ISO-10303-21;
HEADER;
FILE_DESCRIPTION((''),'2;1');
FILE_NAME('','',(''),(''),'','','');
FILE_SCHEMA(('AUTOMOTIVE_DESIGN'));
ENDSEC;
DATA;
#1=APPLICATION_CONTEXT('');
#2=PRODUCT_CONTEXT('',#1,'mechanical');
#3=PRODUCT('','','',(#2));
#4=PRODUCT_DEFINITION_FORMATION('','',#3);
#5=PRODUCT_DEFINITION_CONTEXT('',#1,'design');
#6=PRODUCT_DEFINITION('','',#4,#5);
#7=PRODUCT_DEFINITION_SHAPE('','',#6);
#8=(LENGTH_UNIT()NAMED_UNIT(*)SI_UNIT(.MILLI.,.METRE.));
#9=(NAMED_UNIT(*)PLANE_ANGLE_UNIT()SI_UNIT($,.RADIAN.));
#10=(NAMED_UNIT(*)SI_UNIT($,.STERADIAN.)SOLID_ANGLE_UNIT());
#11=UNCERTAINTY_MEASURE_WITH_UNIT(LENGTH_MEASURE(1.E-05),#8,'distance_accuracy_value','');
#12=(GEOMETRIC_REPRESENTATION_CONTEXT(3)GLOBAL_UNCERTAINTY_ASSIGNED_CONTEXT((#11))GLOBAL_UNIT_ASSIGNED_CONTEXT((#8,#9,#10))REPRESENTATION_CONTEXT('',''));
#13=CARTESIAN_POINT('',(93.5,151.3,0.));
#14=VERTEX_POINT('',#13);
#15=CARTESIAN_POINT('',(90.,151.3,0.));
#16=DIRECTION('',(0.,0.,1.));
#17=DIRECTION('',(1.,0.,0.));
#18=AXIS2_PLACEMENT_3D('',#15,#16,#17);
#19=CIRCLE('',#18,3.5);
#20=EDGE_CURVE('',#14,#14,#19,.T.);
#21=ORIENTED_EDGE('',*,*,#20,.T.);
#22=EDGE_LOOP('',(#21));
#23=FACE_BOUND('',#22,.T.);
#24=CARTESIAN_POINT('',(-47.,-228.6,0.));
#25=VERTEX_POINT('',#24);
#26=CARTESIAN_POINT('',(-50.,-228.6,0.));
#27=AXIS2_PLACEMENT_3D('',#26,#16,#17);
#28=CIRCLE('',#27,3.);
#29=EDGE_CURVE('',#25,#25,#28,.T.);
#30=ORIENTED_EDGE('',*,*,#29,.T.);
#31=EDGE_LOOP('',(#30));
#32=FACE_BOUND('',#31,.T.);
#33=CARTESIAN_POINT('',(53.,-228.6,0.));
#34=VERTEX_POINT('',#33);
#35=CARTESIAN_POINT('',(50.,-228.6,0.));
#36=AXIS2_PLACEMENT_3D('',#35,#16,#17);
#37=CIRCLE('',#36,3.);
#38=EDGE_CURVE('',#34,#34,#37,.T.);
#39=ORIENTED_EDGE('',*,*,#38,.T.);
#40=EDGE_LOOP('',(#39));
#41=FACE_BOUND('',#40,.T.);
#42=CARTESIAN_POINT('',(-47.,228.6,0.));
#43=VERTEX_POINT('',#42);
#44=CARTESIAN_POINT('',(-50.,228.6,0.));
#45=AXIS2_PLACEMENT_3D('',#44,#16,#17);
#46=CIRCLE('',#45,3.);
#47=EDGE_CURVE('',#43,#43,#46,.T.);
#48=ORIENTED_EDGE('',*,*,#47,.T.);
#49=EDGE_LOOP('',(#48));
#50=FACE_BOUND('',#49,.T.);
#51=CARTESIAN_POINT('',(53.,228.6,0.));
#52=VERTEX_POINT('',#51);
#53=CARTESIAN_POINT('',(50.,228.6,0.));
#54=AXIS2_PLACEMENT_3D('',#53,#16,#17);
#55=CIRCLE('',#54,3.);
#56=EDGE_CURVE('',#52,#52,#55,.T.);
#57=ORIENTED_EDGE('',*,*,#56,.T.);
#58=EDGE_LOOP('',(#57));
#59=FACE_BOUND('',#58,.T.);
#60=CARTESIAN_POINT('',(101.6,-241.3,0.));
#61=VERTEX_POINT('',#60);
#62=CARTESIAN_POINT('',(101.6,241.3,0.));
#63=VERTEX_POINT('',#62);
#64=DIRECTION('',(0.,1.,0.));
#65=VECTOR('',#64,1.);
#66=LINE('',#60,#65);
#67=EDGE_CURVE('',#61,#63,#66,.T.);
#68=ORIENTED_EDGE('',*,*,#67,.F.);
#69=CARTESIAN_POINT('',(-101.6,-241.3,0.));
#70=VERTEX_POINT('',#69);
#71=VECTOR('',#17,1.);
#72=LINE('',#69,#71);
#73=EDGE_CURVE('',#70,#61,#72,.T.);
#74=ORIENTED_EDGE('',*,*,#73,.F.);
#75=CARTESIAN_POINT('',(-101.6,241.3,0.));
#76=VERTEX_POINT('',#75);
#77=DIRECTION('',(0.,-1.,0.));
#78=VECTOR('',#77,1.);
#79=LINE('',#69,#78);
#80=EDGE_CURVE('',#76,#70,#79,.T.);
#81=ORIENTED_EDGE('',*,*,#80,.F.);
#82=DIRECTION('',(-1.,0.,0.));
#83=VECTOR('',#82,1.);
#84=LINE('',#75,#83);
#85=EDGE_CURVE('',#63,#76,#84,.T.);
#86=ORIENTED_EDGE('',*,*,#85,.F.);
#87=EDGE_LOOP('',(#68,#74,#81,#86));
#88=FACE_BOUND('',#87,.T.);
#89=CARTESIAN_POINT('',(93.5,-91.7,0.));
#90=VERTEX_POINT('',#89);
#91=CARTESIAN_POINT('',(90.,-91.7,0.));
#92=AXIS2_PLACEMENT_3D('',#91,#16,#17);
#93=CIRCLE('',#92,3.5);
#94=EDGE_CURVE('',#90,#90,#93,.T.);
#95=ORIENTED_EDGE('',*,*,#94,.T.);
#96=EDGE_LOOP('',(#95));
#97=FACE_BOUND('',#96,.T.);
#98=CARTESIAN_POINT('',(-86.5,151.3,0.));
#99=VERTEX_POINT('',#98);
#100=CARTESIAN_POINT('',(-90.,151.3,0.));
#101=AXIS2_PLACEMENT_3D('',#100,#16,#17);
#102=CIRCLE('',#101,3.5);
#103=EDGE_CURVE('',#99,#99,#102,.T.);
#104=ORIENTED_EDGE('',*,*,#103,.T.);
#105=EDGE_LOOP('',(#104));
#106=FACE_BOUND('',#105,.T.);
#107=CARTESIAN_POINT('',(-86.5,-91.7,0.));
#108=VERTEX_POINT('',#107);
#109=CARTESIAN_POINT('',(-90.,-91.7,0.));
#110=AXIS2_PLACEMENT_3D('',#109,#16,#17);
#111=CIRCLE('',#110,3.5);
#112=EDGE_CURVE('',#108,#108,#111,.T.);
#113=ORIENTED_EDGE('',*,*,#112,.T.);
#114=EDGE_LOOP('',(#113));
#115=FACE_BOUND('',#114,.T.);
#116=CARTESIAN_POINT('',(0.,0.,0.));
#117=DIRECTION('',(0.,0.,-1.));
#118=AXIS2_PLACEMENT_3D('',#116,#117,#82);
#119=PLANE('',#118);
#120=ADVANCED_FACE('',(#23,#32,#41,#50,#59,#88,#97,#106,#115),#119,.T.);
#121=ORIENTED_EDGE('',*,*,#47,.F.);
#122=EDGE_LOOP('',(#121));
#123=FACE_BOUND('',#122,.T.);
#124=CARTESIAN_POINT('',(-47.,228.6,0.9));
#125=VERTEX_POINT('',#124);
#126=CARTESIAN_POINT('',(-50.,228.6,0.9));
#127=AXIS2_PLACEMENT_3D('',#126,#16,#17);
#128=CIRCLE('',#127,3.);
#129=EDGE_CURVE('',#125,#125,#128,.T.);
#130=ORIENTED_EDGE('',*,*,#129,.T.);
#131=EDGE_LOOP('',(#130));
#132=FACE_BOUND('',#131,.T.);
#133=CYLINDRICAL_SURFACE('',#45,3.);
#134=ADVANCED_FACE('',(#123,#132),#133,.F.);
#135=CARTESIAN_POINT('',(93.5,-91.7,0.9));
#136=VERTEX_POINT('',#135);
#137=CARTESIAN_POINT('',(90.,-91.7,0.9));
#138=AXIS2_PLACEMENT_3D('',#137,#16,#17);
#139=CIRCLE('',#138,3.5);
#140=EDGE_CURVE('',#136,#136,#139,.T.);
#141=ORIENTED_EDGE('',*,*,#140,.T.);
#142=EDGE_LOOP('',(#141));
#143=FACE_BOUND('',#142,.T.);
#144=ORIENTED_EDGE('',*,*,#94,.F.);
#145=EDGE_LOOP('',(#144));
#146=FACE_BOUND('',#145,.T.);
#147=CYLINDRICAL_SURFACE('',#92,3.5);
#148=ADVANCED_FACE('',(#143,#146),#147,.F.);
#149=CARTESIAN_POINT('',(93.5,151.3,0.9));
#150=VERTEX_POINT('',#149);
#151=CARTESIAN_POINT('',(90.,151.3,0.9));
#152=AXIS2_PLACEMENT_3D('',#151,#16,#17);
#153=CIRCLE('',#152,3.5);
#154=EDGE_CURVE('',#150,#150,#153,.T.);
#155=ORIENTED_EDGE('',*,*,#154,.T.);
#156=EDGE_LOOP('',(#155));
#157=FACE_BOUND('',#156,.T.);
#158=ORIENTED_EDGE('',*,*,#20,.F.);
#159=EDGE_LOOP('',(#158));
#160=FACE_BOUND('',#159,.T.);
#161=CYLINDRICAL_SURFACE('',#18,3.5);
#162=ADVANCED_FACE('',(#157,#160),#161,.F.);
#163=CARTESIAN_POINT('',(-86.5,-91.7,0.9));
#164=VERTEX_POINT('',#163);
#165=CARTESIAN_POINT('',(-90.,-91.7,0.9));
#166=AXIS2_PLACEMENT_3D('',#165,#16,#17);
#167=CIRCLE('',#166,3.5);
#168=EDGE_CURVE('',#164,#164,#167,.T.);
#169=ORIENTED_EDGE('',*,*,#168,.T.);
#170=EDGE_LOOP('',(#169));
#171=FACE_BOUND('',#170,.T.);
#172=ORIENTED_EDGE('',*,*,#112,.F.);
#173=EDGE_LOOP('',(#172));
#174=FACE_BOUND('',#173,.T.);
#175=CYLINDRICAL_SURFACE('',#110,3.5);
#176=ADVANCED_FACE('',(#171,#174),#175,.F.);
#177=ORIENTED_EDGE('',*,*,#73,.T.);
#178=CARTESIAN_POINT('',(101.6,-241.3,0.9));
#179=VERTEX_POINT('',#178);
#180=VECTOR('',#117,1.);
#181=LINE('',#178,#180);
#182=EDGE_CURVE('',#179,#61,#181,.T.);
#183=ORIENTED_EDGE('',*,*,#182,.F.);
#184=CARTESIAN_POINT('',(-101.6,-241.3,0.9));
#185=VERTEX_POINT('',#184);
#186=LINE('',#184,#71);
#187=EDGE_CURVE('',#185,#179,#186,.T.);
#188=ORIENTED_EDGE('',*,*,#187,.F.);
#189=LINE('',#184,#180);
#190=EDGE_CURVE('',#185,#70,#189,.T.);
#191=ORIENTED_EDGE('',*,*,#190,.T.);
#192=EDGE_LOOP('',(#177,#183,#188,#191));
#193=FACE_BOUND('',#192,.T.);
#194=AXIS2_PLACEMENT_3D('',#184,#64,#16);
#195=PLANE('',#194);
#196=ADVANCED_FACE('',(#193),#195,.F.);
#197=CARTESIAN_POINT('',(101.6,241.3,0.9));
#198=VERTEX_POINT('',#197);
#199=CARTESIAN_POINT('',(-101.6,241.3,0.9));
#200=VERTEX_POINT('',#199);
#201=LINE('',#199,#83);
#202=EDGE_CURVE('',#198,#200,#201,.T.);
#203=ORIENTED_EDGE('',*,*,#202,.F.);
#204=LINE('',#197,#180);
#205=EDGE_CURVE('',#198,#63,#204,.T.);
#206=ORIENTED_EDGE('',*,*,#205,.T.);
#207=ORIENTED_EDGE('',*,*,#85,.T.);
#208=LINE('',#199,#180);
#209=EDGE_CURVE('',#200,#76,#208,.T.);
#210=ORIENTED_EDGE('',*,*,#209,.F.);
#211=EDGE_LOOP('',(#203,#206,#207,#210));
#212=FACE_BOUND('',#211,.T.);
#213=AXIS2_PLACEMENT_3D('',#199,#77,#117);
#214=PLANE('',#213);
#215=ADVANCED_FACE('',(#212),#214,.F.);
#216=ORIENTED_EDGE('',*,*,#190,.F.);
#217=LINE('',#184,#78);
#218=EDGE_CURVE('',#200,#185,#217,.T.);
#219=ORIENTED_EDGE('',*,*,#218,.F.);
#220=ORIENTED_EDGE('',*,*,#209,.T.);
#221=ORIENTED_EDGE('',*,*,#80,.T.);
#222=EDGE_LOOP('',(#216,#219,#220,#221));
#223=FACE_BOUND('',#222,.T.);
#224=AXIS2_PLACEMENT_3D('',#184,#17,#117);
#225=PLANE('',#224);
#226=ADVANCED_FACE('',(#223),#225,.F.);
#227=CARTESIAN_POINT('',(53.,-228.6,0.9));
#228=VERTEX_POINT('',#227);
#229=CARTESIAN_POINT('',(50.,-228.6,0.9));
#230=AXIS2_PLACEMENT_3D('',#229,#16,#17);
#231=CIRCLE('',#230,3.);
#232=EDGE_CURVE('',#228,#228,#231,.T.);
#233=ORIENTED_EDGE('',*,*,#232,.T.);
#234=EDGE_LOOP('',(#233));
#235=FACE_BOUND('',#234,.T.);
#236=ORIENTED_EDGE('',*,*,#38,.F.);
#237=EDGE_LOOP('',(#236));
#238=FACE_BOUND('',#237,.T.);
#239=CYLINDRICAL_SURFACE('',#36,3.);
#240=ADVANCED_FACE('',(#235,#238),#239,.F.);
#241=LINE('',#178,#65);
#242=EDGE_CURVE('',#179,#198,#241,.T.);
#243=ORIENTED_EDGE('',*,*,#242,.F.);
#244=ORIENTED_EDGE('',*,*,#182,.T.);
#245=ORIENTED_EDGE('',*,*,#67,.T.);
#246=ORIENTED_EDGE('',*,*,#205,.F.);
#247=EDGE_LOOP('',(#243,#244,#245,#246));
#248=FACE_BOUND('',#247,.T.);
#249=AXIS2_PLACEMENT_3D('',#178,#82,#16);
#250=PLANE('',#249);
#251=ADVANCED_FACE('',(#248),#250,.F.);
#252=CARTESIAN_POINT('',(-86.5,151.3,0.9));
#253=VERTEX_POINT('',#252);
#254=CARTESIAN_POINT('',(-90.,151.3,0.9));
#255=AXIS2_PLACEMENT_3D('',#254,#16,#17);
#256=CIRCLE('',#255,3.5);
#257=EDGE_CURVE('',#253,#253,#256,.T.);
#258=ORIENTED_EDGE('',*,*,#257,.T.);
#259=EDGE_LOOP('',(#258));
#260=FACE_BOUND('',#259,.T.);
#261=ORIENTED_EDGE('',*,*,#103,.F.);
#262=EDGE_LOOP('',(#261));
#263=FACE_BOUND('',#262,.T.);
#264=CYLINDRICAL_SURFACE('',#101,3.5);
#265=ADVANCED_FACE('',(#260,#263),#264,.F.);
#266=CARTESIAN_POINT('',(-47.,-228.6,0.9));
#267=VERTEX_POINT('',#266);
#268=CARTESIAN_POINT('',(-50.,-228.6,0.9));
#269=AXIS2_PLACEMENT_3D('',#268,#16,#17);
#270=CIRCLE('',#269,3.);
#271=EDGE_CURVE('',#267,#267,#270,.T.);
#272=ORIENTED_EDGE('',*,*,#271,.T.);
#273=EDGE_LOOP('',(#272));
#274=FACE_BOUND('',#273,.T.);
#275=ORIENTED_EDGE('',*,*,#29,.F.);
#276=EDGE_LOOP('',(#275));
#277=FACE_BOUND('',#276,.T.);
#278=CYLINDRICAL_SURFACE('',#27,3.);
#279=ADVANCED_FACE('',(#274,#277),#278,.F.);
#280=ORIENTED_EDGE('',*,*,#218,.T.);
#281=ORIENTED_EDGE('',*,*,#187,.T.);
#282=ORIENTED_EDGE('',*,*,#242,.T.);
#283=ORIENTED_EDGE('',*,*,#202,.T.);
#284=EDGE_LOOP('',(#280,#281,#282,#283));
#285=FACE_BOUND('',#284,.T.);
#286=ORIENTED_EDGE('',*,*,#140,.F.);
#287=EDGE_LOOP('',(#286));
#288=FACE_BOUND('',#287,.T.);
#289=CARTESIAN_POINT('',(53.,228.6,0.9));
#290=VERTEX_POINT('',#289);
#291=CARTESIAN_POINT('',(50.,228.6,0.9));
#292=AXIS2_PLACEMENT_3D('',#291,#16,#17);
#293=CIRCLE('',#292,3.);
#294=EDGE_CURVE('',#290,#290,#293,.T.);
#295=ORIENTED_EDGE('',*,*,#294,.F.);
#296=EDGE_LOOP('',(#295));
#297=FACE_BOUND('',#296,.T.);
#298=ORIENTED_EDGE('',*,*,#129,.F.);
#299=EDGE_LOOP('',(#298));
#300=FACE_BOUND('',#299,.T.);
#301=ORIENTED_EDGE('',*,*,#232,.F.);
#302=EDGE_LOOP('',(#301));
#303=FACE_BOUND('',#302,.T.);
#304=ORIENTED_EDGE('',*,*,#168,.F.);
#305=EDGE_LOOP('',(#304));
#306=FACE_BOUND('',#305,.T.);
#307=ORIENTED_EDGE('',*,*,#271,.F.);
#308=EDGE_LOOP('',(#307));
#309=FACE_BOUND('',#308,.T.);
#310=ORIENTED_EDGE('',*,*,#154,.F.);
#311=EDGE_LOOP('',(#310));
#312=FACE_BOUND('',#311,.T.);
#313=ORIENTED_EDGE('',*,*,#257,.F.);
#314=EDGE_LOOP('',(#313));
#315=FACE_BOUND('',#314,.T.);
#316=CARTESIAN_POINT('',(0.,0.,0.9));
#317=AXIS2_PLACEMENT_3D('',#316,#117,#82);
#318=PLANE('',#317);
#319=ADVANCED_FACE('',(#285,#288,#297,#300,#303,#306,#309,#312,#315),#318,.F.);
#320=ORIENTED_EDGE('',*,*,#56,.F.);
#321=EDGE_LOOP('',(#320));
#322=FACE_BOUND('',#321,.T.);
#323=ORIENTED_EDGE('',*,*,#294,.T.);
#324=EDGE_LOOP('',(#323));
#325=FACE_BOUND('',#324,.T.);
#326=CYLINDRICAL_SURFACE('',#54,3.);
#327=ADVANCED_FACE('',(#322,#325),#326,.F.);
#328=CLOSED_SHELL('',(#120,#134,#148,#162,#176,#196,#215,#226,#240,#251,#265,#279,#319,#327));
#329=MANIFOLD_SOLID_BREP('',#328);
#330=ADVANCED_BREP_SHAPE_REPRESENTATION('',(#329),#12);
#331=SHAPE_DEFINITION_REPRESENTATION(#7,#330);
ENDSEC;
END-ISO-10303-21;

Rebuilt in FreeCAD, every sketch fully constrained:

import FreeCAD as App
import Part
import Sketcher
Q = App.Units.Quantity

doc = App.newDocument("Part")
params = doc.addObject("Spreadsheet::Sheet", "Params")
for row, (alias, value) in enumerate([
    ("sketch1_width", "203.2 mm"),
    ("sketch1_height", "482.6 mm"),
    ("pad1_length", "0.9 mm"),
    ("sketch2_diameter", "7 mm"),
    ("pocket1_length", "0.9 mm"),
    ("sketch3_diameter", "6 mm"),
    ("pocket2_length", "0.9 mm"),
], start=1):
    params.set(f"A{row}", alias)
    params.set(f"B{row}", "=" + value)
    params.setAlias(f"B{row}", alias)

body = doc.addObject("PartDesign::Body", "Body")

sketch1 = body.newObject("Sketcher::SketchObject", "Sketch")
sketch1.AttachmentSupport = (doc.getObject("XY_Plane"), [""])
sketch1.MapMode = "FlatFace"
sketch1.addGeometry([
    Part.LineSegment(App.Vector(-102, 241, 0), App.Vector(-102, -241, 0)),
    Part.LineSegment(App.Vector(-102, -241, 0), App.Vector(102, -241, 0)),
    Part.LineSegment(App.Vector(102, -241, 0), App.Vector(102, 241, 0)),
    Part.LineSegment(App.Vector(102, 241, 0), App.Vector(-102, 241, 0)),
], False)
sketch1.addConstraint([
    Sketcher.Constraint("Coincident", 0, 2, 1, 1),
    Sketcher.Constraint("Coincident", 1, 2, 2, 1),
    Sketcher.Constraint("Coincident", 2, 2, 3, 1),
    Sketcher.Constraint("Coincident", 3, 2, 0, 1),
    Sketcher.Constraint("Vertical", 0),
    Sketcher.Constraint("Horizontal", 1),
    Sketcher.Constraint("Vertical", 2),
    Sketcher.Constraint("Horizontal", 3),
    Sketcher.Constraint("Symmetric", 0, 2, 2, 2, -1, 1),
    Sketcher.Constraint("DistanceX", 1, 1, 1, 2, Q("203.2 mm")),
    Sketcher.Constraint("DistanceY", 0, 2, 0, 1, Q("482.6 mm")),
])
sketch1.setExpression("Constraints[9]", "Params.sketch1_width")
sketch1.setExpression("Constraints[10]", "Params.sketch1_height")
pad1 = body.newObject("PartDesign::Pad", "Pad")
pad1.Profile = sketch1
pad1.setExpression("Length", "Params.pad1_length")

sketch2 = body.newObject("Sketcher::SketchObject", "Sketch001")
sketch2.AttachmentSupport = (doc.getObject("XY_Plane"), [""])
sketch2.MapMode = "FlatFace"
sketch2.AttachmentOffset = App.Placement(App.Vector(0, 0, 0.9), App.Rotation())
sketch2.addGeometry([
    Part.Circle(App.Vector(-90, 151.3, 0), App.Vector(0, 0, 1), 3.5),
    Part.Circle(App.Vector(90, 151.3, 0), App.Vector(0, 0, 1), 3.5),
    Part.Circle(App.Vector(90, -91.7, 0), App.Vector(0, 0, 1), 3.5),
    Part.Circle(App.Vector(-90, -91.7, 0), App.Vector(0, 0, 1), 3.5),
], False)
sketch2.addConstraint([
    Sketcher.Constraint("Equal", 0, 1),
    Sketcher.Constraint("Equal", 1, 2),
    Sketcher.Constraint("Equal", 2, 3),
    Sketcher.Constraint("Symmetric", 0, 3, 1, 3, -2),
    Sketcher.Constraint("Symmetric", 2, 3, 3, 3, -2),
    Sketcher.Constraint("Vertical", 1, 3, 2, 3),
    Sketcher.Constraint("Diameter", 0, Q("7 mm")),
    Sketcher.Constraint("DistanceX", 0, 3, -1, 1, Q("90 mm")),
    Sketcher.Constraint("DistanceY", 2, 3, 1, 3, Q("243 mm")),
    Sketcher.Constraint("DistanceY", -1, 1, 0, 3, Q("151.3 mm")),
])
sketch2.setExpression("Constraints[6]", "Params.sketch2_diameter")
pocket1 = body.newObject("PartDesign::Pocket", "Pocket")
pocket1.Profile = sketch2
pocket1.setExpression("Length", "Params.pocket1_length")

sketch3 = body.newObject("Sketcher::SketchObject", "Sketch002")
sketch3.AttachmentSupport = (doc.getObject("XY_Plane"), [""])
sketch3.MapMode = "FlatFace"
sketch3.AttachmentOffset = App.Placement(App.Vector(0, 0, 0.9), App.Rotation())
sketch3.addGeometry([
    Part.Circle(App.Vector(-50, 228.6, 0), App.Vector(0, 0, 1), 3),
    Part.Circle(App.Vector(50, 228.6, 0), App.Vector(0, 0, 1), 3),
    Part.Circle(App.Vector(50, -228.6, 0), App.Vector(0, 0, 1), 3),
    Part.Circle(App.Vector(-50, -228.6, 0), App.Vector(0, 0, 1), 3),
], False)
sketch3.addConstraint([
    Sketcher.Constraint("Equal", 0, 1),
    Sketcher.Constraint("Equal", 1, 2),
    Sketcher.Constraint("Equal", 2, 3),
    Sketcher.Constraint("Symmetric", 0, 3, 2, 3, -1, 1),
    Sketcher.Constraint("Symmetric", 1, 3, 3, 3, -1, 1),
    Sketcher.Constraint("Symmetric", 0, 3, 1, 3, -2),
    Sketcher.Constraint("Diameter", 0, Q("6 mm")),
    Sketcher.Constraint("DistanceX", 0, 3, -1, 1, Q("50 mm")),
    Sketcher.Constraint("DistanceY", -1, 1, 0, 3, Q("228.6 mm")),
])
sketch3.setExpression("Constraints[6]", "Params.sketch3_diameter")
pocket2 = body.newObject("PartDesign::Pocket", "Pocket001")
pocket2.Profile = sketch3
pocket2.setExpression("Length", "Params.pocket2_length")

doc.recompute()
